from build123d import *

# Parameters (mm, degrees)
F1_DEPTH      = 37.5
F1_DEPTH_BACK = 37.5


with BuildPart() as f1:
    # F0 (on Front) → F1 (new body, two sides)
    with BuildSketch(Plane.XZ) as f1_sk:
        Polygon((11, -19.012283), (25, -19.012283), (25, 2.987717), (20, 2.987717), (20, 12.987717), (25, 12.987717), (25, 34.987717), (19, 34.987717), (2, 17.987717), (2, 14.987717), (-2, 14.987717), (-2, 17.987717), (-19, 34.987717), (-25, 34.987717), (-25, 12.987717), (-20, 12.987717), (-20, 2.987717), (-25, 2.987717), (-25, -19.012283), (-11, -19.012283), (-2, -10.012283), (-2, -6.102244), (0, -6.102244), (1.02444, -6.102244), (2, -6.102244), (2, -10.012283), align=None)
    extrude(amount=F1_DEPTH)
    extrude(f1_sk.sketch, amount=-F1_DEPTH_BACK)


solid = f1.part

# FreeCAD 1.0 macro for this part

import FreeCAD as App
import Part
import Sketcher
from FreeCAD import Vector


def add_polygon(sketch, points):
    """Adds a closed chain of lines whose ends are joined by coincident constraints."""
    first, n = sketch.GeometryCount, len(points)
    for a, b in zip(points, points[1:] + points[:1]):
        sketch.addGeometry(Part.LineSegment(App.Vector(*a, 0), App.Vector(*b, 0)), False)
    for i in range(n):
        sketch.addConstraint(Sketcher.Constraint("Coincident", first + i, 2, first + (i + 1) % n, 1))

doc = App.newDocument("Part")
body = doc.addObject("PartDesign::Body", "Body")

# Sketch on XZ plane
sketch1 = body.newObject("Sketcher::SketchObject", "Sketch")
sketch1.AttachmentSupport = (doc.getObject("XZ_Plane"), [""])
sketch1.MapMode = "FlatFace"
add_polygon(sketch1, [(11, -19), (25, -19), (25, 3), (20, 3), (20, 13), (25, 13), (25, 35), (19, 35), (2, 18), (2, 15), (-2, 15), (-2, 18), (-19, 35), (-25, 35), (-25, 13), (-20, 13), (-20, 3), (-25, 3), (-25, -19), (-11, -19), (-2, -10), (-2, -6.1), (2, -6.1), (2, -10)])  # lines 0-23
sketch1.addConstraint([
    Sketcher.Constraint("Horizontal", 0),
    Sketcher.Constraint("Vertical", 1),
    Sketcher.Constraint("Horizontal", 2),
    Sketcher.Constraint("Vertical", 3),
    Sketcher.Constraint("Horizontal", 4),
    Sketcher.Constraint("Vertical", 5),
    Sketcher.Constraint("Horizontal", 6),
    Sketcher.Constraint("Vertical", 8),
    Sketcher.Constraint("Horizontal", 9),
    Sketcher.Constraint("Vertical", 10),
    Sketcher.Constraint("Horizontal", 12),
    Sketcher.Constraint("Vertical", 13),
    Sketcher.Constraint("Horizontal", 14),
    Sketcher.Constraint("Vertical", 15),
    Sketcher.Constraint("Horizontal", 16),
    Sketcher.Constraint("Vertical", 17),
    Sketcher.Constraint("Horizontal", 18),
    Sketcher.Constraint("Vertical", 20),
    Sketcher.Constraint("Horizontal", 21),
    Sketcher.Constraint("Vertical", 22),
    Sketcher.Constraint("Symmetric", 7, 2, 10, 2, -2),
    Sketcher.Constraint("Symmetric", 6, 2, 11, 2, -2),
    Sketcher.Constraint("Symmetric", 4, 2, 13, 2, -2),
    Sketcher.Constraint("Symmetric", 2, 2, 15, 2, -2),
    Sketcher.Constraint("Symmetric", 0, 2, 17, 2, -2),
    Sketcher.Constraint("Symmetric", 19, 2, 22, 2, -2),
    Sketcher.Constraint("Perpendicular", 7, 11),
    Sketcher.Constraint("Perpendicular", 11, 19),
    Sketcher.Constraint("Perpendicular", 19, 23),
    Sketcher.Constraint("Vertical", 1, 2, 4, 2),
    Sketcher.Constraint("Vertical", 10, 2, 19, 2),
    Sketcher.Constraint("Equal", 1, 5),
    Sketcher.Constraint("DistanceX", 0, 1, 0, 2, 14.0),
    Sketcher.Constraint("DistanceX", 2, 2, 2, 1, 5.0),
    Sketcher.Constraint("DistanceX", 6, 2, 6, 1, 6.0),
    Sketcher.Constraint("DistanceX", 9, 2, 9, 1, 4.0),
    Sketcher.Constraint("DistanceY", 1, 1, 1, 2, 22.0),
    Sketcher.Constraint("DistanceY", 3, 1, 3, 2, 10.0),
    Sketcher.Constraint("DistanceY", 8, 2, 8, 1, 3.0),
    Sketcher.Constraint("DistanceX", -1, 1, 0, 2, 25.0),
    Sketcher.Constraint("DistanceY", 20, 1, 20, 2, 3.910039),
    Sketcher.Constraint("DistanceY", 0, 2, -1, 1, 19.012283),
])
pad1 = body.newObject("PartDesign::Pad", "Pad")
pad1.Profile = sketch1
pad1.Type = "TwoLengths"
pad1.Length = 37.5
pad1.Length2 = 37.5

doc.recompute()
